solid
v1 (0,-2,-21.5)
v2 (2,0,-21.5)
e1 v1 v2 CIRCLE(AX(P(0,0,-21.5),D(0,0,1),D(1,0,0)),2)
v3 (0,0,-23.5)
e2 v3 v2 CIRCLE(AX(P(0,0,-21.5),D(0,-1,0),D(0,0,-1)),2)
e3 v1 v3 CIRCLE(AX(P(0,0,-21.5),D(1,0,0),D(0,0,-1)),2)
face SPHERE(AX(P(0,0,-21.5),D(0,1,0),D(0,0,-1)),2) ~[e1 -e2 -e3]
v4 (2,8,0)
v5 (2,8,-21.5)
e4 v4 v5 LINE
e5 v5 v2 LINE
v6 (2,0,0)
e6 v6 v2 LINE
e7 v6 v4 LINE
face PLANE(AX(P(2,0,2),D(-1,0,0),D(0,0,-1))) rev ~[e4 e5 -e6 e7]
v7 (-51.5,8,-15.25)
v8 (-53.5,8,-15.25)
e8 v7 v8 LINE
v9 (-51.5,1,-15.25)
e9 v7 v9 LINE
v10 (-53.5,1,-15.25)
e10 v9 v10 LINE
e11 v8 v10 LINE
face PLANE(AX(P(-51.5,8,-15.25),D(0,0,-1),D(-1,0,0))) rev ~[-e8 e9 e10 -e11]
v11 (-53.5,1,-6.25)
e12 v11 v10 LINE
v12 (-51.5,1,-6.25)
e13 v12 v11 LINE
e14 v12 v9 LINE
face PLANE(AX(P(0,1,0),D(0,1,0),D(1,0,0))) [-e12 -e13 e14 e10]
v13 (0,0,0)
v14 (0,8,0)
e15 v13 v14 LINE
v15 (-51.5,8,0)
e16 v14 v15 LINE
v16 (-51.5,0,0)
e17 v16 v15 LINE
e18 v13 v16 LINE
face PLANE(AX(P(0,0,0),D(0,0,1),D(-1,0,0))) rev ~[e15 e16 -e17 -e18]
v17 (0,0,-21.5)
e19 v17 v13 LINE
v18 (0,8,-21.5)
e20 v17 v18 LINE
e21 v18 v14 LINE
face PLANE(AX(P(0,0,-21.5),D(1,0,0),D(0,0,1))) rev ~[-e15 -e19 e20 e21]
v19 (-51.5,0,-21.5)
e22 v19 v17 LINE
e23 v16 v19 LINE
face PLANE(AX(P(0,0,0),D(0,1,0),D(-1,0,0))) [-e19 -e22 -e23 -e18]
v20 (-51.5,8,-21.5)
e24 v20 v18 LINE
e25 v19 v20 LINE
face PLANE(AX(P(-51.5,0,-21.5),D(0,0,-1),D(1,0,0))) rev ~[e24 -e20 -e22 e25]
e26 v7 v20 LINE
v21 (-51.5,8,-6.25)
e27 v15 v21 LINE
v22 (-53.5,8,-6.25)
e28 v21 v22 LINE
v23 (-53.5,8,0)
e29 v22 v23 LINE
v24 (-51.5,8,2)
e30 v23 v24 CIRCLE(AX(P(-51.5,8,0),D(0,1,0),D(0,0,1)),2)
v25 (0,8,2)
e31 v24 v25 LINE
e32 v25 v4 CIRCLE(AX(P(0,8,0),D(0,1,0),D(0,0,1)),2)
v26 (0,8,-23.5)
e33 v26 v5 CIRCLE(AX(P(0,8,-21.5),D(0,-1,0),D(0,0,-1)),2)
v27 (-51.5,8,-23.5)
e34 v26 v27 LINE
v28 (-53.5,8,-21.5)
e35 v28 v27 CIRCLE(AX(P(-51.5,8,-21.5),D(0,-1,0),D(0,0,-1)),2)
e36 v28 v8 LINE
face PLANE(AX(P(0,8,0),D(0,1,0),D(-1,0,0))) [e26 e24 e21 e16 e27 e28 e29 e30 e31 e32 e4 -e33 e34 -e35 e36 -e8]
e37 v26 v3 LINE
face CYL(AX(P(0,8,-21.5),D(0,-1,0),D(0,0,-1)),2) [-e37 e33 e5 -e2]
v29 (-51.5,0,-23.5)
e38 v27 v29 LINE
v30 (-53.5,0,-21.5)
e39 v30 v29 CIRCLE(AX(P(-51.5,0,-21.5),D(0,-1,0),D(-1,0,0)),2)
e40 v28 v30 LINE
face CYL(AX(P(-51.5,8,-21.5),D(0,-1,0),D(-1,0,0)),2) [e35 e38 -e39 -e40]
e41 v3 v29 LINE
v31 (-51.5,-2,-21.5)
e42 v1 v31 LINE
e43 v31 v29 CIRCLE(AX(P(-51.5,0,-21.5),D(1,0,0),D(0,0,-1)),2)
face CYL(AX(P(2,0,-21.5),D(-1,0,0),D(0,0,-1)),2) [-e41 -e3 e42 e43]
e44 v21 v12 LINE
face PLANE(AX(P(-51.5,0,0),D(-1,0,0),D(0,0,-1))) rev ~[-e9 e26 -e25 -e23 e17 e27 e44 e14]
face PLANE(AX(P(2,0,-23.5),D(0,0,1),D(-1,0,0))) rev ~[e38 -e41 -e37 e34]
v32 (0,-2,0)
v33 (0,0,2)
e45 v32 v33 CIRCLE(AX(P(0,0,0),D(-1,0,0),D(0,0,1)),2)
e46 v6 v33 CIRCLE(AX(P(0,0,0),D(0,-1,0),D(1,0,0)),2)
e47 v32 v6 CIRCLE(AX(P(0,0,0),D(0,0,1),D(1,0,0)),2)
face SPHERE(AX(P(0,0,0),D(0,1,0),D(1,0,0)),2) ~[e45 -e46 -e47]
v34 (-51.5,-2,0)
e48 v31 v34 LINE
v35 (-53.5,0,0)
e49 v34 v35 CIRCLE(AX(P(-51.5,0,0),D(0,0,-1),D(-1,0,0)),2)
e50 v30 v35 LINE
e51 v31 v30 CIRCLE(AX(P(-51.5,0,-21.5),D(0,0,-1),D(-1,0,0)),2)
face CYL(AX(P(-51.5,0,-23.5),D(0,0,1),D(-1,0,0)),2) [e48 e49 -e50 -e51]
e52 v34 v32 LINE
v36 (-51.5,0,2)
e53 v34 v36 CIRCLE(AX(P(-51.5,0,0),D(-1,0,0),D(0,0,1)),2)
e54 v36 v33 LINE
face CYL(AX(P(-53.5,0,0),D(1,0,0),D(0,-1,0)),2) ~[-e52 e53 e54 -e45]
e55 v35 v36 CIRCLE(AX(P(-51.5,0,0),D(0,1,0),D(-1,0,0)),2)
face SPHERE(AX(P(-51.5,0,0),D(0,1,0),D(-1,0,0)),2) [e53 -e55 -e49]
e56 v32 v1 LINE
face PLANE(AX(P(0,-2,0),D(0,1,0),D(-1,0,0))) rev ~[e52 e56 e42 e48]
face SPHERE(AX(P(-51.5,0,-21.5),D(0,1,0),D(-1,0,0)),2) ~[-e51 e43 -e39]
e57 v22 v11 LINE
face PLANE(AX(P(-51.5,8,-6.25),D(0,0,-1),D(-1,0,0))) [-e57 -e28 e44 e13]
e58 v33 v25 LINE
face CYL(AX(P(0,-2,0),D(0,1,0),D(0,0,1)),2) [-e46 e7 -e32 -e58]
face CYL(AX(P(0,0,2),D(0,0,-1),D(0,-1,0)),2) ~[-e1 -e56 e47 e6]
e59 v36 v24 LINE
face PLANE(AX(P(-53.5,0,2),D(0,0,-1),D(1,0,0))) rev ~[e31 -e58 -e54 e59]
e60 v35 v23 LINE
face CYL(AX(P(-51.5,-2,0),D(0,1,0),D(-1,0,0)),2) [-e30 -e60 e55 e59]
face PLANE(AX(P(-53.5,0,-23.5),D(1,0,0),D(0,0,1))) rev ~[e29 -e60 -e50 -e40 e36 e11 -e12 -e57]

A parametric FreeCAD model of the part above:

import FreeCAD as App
import Part
import Sketcher

V = App.Vector
Q = App.Units.Quantity


def edges_at(feature, points):
    """Names of the edges that pass closest to the given points."""
    edges = feature.Shape.Edges
    near = lambda p: min(range(len(edges)), key=lambda i: edges[i].distToShape(Part.Vertex(*p))[0])
    return sorted({f"Edge{near(p) + 1}" for p in points})

doc = App.newDocument("Part")
params = doc.addObject("Spreadsheet::Sheet", "Params")
for row, (alias, value) in enumerate([
    ("sketch1_width", "55.5 mm"),
    ("sketch1_height", "25.5 mm"),
    ("pad1_length", "2 mm"),
    ("sketch2_width", "51.5 mm"),
    ("sketch2_height", "21.5 mm"),
    ("pad2_length", "8 mm"),
    ("sketch3_height", "9 mm"),
    ("sketch3_width", "2 mm"),
    ("pocket1_length", "7 mm"),
    ("fillet_radius", "2 mm"),
], start=1):
    params.set(f"A{row}", alias)
    params.set(f"B{row}", "=" + value)
    params.setAlias(f"B{row}", alias)

body = doc.addObject("PartDesign::Body", "Body")

sketch1 = body.newObject("Sketcher::SketchObject", "Sketch")
sketch1.AttachmentSupport = (doc.getObject("XZ_Plane"), [""])
sketch1.MapMode = "FlatFace"
sketch1.addGeometry([
    Part.LineSegment(V(-54, -24, 0), V(-54, 2, 0)),
    Part.LineSegment(V(-54, 2, 0), V(2, 2, 0)),
    Part.LineSegment(V(2, 2, 0), V(2, -24, 0)),
    Part.LineSegment(V(2, -24, 0), V(-54, -24, 0)),
], False)
sketch1.addConstraint([
    Sketcher.Constraint("Coincident", 0, 2, 1, 1),
    Sketcher.Constraint("Coincident", 1, 2, 2, 1),
    Sketcher.Constraint("Coincident", 2, 2, 3, 1),
    Sketcher.Constraint("Coincident", 3, 2, 0, 1),
    Sketcher.Constraint("Vertical", 0),
    Sketcher.Constraint("Horizontal", 1),
    Sketcher.Constraint("Vertical", 2),
    Sketcher.Constraint("Horizontal", 3),
    Sketcher.Constraint("DistanceY", -1, 1, 0, 2, Q("2 mm")),
    Sketcher.Constraint("DistanceX", -1, 1, 1, 2, Q("2 mm")),
    Sketcher.Constraint("DistanceX", 1, 1, 1, 2, Q("55.5 mm")),
    Sketcher.Constraint("DistanceY", 0, 1, 0, 2, Q("25.5 mm")),
])
sketch1.setExpression("Constraints[10]", "Params.sketch1_width")
sketch1.setExpression("Constraints[11]", "Params.sketch1_height")
pad1 = body.newObject("PartDesign::Pad", "Pad")
pad1.Profile = sketch1
pad1.setExpression("Length", "Params.pad1_length")

sketch2 = body.newObject("Sketcher::SketchObject", "Sketch001")
sketch2.AttachmentSupport = (doc.getObject("XZ_Plane"), [""])
sketch2.MapMode = "FlatFace"
sketch2.addGeometry([
    Part.LineSegment(V(-54, -24, 0), V(-54, 2, 0)),
    Part.LineSegment(V(-54, 2, 0), V(2, 2, 0)),
    Part.LineSegment(V(2, 2, 0), V(2, -24, 0)),
    Part.LineSegment(V(2, -24, 0), V(-54, -24, 0)),
    Part.LineSegment(V(0, -22, 0), V(0, 0, 0)),
    Part.LineSegment(V(0, 0, 0), V(-52, 0, 0)),
    Part.LineSegment(V(-52, 0, 0), V(-52, -22, 0)),
    Part.LineSegment(V(-52, -22, 0), V(0, -22, 0)),
], False)
sketch2.addConstraint([
    Sketcher.Constraint("Coincident", 0, 2, 1, 1),
    Sketcher.Constraint("Coincident", 1, 2, 2, 1),
    Sketcher.Constraint("Coincident", 2, 2, 3, 1),
    Sketcher.Constraint("Coincident", 3, 2, 0, 1),
    Sketcher.Constraint("Coincident", 4, 2, 5, 1),
    Sketcher.Constraint("Coincident", 5, 2, 6, 1),
    Sketcher.Constraint("Coincident", 6, 2, 7, 1),
    Sketcher.Constraint("Coincident", 7, 2, 4, 1),
    Sketcher.Constraint("Vertical", 0),
    Sketcher.Constraint("Horizontal", 1),
    Sketcher.Constraint("Vertical", 2),
    Sketcher.Constraint("Horizontal", 3),
    Sketcher.Constraint("Vertical", 4),
    Sketcher.Constraint("Horizontal", 5),
    Sketcher.Constraint("Vertical", 6),
    Sketcher.Constraint("Horizontal", 7),
    Sketcher.Constraint("Coincident", 4, 2, -1, 1),
    Sketcher.Constraint("DistanceX", 5, 2, 5, 1, Q("51.5 mm")),
    Sketcher.Constraint("DistanceY", 4, 1, 4, 2, Q("21.5 mm")),
    Sketcher.Constraint("DistanceY", -1, 1, 0, 2, Q("2 mm")),
    Sketcher.Constraint("DistanceX", -1, 1, 1, 2, Q("2 mm")),
    Sketcher.Constraint("DistanceX", 0, 2, 5, 2, Q("2 mm")),
    Sketcher.Constraint("DistanceY", 3, 2, 6, 2, Q("2 mm")),
])
sketch2.setExpression("Constraints[17]", "Params.sketch2_width")
sketch2.setExpression("Constraints[18]", "Params.sketch2_height")
pad2 = body.newObject("PartDesign::Pad", "Pad001")
pad2.Profile = sketch2
pad2.setExpression("Length", "Params.pad2_length")
pad2.Reversed = True

sketch3 = body.newObject("Sketcher::SketchObject", "Sketch002")
sketch3.AttachmentSupport = (doc.getObject("XZ_Plane"), [""])
sketch3.MapMode = "FlatFace"
sketch3.AttachmentOffset = App.Placement(V(0, 0, -8), App.Rotation())
sketch3.addGeometry([
    Part.LineSegment(V(-53.5, -6.2, 0), V(-51.5, -6.2, 0)),
    Part.LineSegment(V(-51.5, -6.2, 0), V(-51.5, -15.2, 0)),
    Part.LineSegment(V(-51.5, -15.2, 0), V(-53.5, -15.2, 0)),
    Part.LineSegment(V(-53.5, -15.2, 0), V(-53.5, -6.2, 0)),
], False)
sketch3.addConstraint([
    Sketcher.Constraint("Coincident", 0, 2, 1, 1),
    Sketcher.Constraint("Coincident", 1, 2, 2, 1),
    Sketcher.Constraint("Coincident", 2, 2, 3, 1),
    Sketcher.Constraint("Coincident", 3, 2, 0, 1),
    Sketcher.Constraint("Horizontal", 0),
    Sketcher.Constraint("Vertical", 1),
    Sketcher.Constraint("Horizontal", 2),
    Sketcher.Constraint("Vertical", 3),
    Sketcher.Constraint("DistanceY", 1, 2, 1, 1, Q("9 mm")),
    Sketcher.Constraint("DistanceX", 0, 1, 0, 2, Q("2 mm")),
    Sketcher.Constraint("DistanceX", 0, 2, -1, 1, Q("51.5 mm")),
    Sketcher.Constraint("DistanceY", 0, 2, -1, 1, Q("6.25 mm")),
])
sketch3.setExpression("Constraints[8]", "Params.sketch3_height")
sketch3.setExpression("Constraints[9]", "Params.sketch3_width")
pocket1 = body.newObject("PartDesign::Pocket", "Pocket")
pocket1.Profile = sketch3
pocket1.setExpression("Length", "Params.pocket1_length")
pocket1.Reversed = True
doc.recompute()

fillet = body.newObject("PartDesign::Fillet", "Fillet")
fillet.Base = (pocket1, edges_at(pocket1, [
    (2, 3, 2),
    (2, 3, -23.5),
    (-53.5, 3, 2),
    (-53.5, 3, -23.5),
    (-53.5, -2, -10.75),
    (-25.75, -2, -23.5),
    (2, -2, -10.75),
    (-25.75, -2, 2),
]))
fillet.setExpression("Radius", "Params.fillet_radius")

doc.recompute()
